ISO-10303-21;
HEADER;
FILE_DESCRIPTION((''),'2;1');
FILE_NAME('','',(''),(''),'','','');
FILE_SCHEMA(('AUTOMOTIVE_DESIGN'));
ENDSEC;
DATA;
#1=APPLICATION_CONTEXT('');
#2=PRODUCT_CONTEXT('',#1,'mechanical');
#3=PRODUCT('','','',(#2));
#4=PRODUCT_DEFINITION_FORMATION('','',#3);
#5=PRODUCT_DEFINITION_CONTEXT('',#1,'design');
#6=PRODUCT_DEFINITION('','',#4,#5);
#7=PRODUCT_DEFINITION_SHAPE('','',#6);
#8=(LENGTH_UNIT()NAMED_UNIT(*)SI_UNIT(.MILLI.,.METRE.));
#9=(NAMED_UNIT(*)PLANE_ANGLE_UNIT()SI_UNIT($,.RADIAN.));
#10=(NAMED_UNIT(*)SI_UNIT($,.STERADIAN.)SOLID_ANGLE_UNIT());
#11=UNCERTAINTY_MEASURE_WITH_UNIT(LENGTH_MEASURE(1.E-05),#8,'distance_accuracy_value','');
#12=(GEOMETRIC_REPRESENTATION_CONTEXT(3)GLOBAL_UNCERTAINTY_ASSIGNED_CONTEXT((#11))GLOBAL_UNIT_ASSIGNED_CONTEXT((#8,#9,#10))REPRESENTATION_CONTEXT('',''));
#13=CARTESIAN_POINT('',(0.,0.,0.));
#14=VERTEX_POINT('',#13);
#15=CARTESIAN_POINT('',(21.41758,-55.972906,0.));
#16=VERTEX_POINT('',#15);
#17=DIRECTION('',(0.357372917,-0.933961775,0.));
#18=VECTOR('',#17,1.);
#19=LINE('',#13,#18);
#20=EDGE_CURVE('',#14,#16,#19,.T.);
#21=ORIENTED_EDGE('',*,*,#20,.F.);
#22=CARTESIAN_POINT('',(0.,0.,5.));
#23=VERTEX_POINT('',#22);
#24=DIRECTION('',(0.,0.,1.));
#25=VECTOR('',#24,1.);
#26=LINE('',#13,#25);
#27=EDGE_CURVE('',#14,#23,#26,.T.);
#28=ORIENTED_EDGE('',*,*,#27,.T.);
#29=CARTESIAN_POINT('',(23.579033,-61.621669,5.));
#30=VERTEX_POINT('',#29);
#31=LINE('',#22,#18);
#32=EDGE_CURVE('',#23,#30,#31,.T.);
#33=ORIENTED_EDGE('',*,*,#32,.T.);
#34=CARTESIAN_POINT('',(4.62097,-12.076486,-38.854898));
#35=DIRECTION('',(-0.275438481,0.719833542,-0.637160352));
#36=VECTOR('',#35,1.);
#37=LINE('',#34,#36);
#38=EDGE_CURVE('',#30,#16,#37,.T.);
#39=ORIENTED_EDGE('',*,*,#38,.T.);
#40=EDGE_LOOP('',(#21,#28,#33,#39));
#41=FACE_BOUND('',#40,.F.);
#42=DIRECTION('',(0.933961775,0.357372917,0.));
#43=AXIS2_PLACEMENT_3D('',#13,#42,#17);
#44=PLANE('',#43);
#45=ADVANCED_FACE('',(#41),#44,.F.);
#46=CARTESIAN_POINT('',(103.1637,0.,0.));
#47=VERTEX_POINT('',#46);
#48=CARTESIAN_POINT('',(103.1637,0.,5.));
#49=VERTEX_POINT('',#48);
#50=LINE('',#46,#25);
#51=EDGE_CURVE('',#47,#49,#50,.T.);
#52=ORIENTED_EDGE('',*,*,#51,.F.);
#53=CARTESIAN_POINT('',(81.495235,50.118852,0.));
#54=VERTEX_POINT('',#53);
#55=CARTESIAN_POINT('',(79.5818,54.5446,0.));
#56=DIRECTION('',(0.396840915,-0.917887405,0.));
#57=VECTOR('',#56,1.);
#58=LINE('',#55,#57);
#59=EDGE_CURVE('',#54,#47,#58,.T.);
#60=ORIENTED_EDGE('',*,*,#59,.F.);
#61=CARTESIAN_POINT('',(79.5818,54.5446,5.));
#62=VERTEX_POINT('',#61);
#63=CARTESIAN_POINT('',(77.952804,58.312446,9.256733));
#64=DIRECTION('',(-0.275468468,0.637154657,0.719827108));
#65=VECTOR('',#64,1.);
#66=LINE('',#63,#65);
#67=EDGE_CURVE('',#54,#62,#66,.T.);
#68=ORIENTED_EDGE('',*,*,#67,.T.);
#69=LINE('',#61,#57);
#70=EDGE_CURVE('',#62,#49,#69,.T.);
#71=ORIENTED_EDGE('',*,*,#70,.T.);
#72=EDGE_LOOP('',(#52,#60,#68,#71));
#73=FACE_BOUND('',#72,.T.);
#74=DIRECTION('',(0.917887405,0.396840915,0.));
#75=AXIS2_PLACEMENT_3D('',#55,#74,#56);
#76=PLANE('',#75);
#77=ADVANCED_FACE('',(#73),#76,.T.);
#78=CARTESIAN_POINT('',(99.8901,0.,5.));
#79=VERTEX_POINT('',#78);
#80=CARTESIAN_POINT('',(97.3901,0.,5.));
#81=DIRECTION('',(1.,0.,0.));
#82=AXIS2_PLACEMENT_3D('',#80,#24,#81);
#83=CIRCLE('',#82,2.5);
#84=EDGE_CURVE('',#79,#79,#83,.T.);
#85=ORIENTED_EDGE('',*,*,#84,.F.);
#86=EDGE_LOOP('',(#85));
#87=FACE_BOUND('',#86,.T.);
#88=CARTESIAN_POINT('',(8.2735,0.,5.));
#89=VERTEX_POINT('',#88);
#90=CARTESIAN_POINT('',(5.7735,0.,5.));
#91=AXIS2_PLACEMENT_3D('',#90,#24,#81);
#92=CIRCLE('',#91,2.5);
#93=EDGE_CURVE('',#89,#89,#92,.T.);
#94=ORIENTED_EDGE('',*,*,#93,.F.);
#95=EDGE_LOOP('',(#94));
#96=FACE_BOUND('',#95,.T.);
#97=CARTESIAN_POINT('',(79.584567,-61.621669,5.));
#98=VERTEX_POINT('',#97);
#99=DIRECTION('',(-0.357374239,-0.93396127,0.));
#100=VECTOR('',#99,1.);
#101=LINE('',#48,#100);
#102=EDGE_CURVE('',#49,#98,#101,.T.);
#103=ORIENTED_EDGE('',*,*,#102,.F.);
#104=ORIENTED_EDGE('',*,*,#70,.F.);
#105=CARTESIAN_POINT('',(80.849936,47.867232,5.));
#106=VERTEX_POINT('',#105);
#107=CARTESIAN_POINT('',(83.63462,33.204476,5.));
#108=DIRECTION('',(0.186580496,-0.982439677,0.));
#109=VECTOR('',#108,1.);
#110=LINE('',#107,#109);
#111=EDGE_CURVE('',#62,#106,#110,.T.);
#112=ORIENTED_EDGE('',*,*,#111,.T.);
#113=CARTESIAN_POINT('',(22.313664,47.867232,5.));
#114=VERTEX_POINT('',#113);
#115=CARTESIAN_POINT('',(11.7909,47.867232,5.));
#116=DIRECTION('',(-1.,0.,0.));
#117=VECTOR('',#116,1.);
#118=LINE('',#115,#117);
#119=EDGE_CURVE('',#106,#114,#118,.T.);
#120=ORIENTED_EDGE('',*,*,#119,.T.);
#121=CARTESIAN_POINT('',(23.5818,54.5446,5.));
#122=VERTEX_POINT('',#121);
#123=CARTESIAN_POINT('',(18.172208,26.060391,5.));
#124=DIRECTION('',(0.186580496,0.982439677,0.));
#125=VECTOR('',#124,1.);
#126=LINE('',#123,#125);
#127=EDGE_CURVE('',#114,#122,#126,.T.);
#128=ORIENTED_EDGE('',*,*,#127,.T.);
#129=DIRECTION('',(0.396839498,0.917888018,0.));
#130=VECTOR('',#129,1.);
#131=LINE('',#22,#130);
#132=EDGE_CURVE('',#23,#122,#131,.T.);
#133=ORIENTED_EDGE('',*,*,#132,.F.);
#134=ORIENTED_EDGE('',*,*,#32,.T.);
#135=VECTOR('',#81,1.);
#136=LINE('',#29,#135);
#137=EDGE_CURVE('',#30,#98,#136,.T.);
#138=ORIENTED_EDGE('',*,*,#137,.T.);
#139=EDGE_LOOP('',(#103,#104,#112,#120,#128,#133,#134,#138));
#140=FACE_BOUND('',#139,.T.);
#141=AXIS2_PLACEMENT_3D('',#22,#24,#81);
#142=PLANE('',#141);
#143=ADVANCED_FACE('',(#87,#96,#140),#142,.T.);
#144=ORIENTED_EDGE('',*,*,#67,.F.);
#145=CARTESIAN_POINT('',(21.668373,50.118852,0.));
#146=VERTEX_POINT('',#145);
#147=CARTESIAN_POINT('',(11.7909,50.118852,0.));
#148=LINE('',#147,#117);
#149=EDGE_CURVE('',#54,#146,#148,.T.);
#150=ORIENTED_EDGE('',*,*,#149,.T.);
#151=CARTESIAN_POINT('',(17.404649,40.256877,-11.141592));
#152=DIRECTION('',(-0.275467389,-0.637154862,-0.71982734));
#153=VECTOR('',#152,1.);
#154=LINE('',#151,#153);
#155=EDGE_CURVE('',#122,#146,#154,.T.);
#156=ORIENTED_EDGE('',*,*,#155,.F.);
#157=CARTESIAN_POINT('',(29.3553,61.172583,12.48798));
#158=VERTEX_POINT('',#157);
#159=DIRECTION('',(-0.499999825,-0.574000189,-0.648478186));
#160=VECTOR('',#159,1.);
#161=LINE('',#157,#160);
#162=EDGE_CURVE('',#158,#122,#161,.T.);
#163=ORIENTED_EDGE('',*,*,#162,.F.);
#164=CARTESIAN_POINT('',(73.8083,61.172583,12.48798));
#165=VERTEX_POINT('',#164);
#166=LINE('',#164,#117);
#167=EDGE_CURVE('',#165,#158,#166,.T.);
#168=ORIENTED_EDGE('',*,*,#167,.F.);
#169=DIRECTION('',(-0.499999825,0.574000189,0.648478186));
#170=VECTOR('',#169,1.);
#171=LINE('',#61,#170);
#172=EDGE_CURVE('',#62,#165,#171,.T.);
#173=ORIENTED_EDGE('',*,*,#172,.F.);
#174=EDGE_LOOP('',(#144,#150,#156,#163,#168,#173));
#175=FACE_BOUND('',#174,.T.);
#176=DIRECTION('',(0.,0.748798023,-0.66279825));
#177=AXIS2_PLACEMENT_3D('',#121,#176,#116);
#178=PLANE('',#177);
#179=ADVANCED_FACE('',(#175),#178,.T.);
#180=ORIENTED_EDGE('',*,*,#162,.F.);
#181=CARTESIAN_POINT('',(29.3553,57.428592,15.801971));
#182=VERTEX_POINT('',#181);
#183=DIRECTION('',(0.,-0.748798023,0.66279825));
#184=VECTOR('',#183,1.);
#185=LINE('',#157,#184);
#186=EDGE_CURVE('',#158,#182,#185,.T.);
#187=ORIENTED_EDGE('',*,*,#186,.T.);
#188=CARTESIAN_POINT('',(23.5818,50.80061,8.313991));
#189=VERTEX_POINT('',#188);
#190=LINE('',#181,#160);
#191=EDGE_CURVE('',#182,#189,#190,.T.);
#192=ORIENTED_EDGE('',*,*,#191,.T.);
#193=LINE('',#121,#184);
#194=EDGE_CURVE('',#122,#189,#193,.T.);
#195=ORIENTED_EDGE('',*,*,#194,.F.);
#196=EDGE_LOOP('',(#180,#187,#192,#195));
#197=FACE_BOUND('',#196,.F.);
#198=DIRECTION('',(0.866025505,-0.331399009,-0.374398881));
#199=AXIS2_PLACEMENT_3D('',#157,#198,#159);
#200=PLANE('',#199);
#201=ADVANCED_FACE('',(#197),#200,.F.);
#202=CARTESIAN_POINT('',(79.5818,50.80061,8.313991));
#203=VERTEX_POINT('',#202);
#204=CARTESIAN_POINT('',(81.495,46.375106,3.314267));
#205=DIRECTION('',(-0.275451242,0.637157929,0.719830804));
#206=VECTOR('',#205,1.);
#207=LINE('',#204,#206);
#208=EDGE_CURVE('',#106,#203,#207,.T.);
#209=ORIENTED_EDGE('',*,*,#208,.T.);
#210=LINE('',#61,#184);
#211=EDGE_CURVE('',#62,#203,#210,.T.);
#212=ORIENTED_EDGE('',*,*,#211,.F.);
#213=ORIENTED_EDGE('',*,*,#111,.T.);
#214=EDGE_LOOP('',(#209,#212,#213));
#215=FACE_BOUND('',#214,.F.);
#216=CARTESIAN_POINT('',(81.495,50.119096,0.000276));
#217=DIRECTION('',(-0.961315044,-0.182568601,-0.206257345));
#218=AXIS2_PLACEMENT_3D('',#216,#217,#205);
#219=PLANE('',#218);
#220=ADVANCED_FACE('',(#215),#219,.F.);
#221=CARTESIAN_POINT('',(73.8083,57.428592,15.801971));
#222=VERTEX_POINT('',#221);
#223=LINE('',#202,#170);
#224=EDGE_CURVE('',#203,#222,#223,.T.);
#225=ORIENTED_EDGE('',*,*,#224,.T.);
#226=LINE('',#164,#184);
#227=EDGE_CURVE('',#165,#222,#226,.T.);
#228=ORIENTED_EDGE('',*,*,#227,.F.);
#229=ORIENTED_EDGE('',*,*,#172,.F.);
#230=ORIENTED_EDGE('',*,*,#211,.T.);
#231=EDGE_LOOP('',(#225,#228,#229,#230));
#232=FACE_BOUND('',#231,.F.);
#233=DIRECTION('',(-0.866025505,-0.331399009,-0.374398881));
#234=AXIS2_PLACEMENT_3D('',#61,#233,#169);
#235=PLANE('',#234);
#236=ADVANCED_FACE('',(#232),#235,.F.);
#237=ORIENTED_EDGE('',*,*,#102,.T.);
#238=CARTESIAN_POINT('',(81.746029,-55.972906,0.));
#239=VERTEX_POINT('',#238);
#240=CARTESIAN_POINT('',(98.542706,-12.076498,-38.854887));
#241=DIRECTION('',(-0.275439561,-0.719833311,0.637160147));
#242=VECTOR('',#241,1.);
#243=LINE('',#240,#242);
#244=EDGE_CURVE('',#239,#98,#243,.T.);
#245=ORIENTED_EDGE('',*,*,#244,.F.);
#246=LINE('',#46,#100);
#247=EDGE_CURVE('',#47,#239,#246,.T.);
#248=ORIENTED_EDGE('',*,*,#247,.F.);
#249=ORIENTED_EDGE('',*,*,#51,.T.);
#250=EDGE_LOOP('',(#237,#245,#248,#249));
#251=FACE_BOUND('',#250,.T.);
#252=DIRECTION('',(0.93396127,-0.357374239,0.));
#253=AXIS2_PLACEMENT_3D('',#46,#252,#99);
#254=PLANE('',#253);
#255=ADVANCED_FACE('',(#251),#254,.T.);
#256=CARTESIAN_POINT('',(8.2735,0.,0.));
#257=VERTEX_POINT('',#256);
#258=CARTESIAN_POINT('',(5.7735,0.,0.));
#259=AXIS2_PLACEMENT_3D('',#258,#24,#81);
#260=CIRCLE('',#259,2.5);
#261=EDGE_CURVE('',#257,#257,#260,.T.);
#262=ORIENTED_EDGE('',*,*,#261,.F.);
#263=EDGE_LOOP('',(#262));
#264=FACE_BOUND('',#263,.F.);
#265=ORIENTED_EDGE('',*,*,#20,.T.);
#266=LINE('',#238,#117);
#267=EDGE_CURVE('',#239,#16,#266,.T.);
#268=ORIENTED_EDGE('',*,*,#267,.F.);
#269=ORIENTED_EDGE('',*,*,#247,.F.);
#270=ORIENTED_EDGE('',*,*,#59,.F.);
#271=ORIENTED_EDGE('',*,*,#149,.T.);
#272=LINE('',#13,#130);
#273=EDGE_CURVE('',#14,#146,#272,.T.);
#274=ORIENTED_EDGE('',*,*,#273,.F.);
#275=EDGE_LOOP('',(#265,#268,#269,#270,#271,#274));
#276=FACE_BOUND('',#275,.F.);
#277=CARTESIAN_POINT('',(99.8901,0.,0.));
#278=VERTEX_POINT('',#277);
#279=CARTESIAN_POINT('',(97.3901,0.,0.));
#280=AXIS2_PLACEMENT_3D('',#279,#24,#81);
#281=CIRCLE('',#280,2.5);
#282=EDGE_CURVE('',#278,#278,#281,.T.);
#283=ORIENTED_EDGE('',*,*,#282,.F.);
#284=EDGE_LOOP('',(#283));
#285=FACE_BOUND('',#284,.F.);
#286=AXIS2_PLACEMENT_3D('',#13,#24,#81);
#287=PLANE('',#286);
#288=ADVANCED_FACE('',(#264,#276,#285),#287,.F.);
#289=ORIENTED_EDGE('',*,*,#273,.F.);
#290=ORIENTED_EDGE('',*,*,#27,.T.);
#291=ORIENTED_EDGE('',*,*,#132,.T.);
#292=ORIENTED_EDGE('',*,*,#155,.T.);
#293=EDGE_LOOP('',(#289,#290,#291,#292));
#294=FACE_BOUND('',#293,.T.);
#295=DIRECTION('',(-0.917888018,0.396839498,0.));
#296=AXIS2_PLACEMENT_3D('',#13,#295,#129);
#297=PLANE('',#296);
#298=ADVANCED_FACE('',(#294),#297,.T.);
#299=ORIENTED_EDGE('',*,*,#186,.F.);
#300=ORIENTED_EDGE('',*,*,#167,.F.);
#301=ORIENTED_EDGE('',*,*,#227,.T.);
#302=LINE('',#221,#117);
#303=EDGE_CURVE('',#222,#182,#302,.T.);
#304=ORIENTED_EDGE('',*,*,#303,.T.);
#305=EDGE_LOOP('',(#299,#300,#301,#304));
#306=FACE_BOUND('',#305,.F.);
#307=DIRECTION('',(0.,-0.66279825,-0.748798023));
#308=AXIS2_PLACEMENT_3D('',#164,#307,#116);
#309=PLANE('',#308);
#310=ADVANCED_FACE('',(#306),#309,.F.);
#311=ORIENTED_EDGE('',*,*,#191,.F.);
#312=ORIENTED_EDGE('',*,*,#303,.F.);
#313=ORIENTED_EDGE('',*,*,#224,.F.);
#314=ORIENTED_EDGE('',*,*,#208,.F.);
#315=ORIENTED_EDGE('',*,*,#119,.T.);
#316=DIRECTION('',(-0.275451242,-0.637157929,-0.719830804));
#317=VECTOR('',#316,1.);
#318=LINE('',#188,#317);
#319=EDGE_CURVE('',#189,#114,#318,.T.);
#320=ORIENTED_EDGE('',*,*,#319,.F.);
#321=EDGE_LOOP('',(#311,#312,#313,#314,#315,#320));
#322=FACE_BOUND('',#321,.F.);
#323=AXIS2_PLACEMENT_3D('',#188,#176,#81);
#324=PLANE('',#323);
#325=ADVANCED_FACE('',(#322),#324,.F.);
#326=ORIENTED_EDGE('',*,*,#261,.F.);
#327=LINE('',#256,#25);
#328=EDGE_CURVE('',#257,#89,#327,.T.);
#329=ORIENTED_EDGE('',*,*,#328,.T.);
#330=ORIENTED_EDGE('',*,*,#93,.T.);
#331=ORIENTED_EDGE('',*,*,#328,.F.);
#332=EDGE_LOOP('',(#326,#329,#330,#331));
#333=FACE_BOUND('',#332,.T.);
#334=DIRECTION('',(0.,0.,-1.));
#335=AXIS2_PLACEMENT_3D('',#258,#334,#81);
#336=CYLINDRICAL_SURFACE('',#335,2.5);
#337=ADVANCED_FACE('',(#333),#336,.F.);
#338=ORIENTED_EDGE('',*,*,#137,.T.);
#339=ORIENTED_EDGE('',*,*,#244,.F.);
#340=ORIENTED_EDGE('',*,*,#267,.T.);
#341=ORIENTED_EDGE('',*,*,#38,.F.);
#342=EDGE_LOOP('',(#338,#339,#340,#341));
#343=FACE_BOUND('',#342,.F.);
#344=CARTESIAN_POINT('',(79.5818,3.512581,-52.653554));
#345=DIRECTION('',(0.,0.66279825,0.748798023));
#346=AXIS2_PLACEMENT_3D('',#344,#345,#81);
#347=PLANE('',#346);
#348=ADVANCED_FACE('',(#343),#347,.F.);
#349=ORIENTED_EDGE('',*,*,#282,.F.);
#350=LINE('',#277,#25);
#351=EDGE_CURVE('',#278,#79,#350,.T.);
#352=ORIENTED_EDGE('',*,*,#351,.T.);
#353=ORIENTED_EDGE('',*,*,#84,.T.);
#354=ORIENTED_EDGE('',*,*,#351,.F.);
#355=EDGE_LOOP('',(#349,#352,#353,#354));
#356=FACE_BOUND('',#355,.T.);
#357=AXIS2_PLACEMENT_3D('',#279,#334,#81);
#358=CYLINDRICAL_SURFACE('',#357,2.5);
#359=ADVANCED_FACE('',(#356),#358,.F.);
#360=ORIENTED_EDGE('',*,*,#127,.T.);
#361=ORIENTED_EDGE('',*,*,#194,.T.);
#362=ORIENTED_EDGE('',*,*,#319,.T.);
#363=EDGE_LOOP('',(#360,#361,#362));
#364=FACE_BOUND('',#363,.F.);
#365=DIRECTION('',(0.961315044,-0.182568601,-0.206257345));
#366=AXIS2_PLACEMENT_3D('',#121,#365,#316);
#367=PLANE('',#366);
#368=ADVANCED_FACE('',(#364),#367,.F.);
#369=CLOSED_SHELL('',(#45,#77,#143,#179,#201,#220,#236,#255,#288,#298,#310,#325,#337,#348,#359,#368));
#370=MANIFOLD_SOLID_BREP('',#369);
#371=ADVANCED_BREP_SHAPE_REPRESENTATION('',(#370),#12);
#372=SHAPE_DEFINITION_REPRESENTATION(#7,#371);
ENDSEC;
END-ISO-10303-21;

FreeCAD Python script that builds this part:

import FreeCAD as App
import Part
import Sketcher
Q = App.Units.Quantity


def add_polygon(sketch, points):
    """Adds a closed chain of lines whose ends are joined by coincident constraints."""
    first, n = sketch.GeometryCount, len(points)
    for a, b in zip(points, points[1:] + points[:1]):
        sketch.addGeometry(Part.LineSegment(App.Vector(*a, 0), App.Vector(*b, 0)), False)
    for i in range(n):
        sketch.addConstraint(Sketcher.Constraint("Coincident", first + i, 2, first + (i + 1) % n, 1))

doc = App.newDocument("Part")
params = doc.addObject("Spreadsheet::Sheet", "Params")
for row, (alias, value) in enumerate([
    ("sketch1_diameter", "5 mm"),
    ("sketch1_width", "56 mm"),
    ("pad1_length", "5 mm"),
    ("sketch2_width", "56 mm"),
    ("pad2_length", "5 mm"),
    ("sketch4_width", "75 mm"),
    ("sketch4_height", "15 mm"),
], start=1):
    params.set(f"A{row}", alias)
    params.set(f"B{row}", "=" + value)
    params.setAlias(f"B{row}", alias)

body = doc.addObject("PartDesign::Body", "Body")

# Sketch on XY plane
sketch1 = body.newObject("Sketcher::SketchObject", "Sketch")
sketch1.AttachmentSupport = (doc.getObject("XY_Plane"), [""])
sketch1.MapMode = "FlatFace"
add_polygon(sketch1, [(23.6, 54.5), (0, 0), (23.6, -61.6), (79.6, -61.6), (103.2, 0), (79.6, 54.5)])  # lines 0-5
sketch1.addGeometry(Part.Circle(App.Vector(5.8, 0, 0), App.Vector(0, 0, 1), 2.5), False)  # 6
sketch1.addGeometry(Part.Circle(App.Vector(97.4, 0, 0), App.Vector(0, 0, 1), 2.5), False)  # 7
sketch1.addConstraint([
    Sketcher.Constraint("Horizontal", 2),
    Sketcher.Constraint("Horizontal", 5),
    Sketcher.Constraint("Coincident", 0, 2, -1, 1),
    Sketcher.Constraint("Equal", 6, 7),
    Sketcher.Constraint("PointOnObject", 6, 3, -1),
    Sketcher.Constraint("PointOnObject", 7, 3, -1),
    Sketcher.Constraint("PointOnObject", 3, 2, -1),
    Sketcher.Constraint("Vertical", 2, 2, 4, 2),
    Sketcher.Constraint("Vertical", 1, 2, 5, 2),
    Sketcher.Constraint("Equal", 1, 3),
    Sketcher.Constraint("Diameter", 6, Q("5 mm")),
    Sketcher.Constraint("DistanceX", 2, 1, 2, 2, Q("56 mm")),
    Sketcher.Constraint("Distance", 0, Q("59.424 mm")),
    Sketcher.Constraint("Distance", 1, Q("65.9865 mm")),
    Sketcher.Constraint("DistanceX", -1, 1, 6, 3, Q("5.7735 mm")),
    Sketcher.Constraint("Angle", 0, Q("-113.3807 deg")),
    Sketcher.Constraint("DistanceX", 7, 3, 3, 2, Q("5.7736 mm")),
])
sketch1.setExpression("Constraints[16]", "Params.sketch1_diameter")
sketch1.setExpression("Constraints[17]", "Params.sketch1_width")
pad1 = body.newObject("PartDesign::Pad", "Pad")
pad1.Profile = sketch1
pad1.setExpression("Length", "Params.pad1_length")

# Sketch on an angled plane
sketch2 = body.newObject("Sketcher::SketchObject", "Sketch001")
sketch2.Placement = App.Placement(App.Vector(23.5818, 54.5446, 5), App.Rotation(App.Vector(-1, 0, 0), App.Vector(0, 0.66279825, 0.748798023), App.Vector(0, 0.748798023, -0.66279825), "ZXY"))
add_polygon(sketch2, [(0, -80.7), (23.6, -39.9), (23.6, -36.1), (0, 0), (-56, 0), (-79.6, -36.1), (-79.6, -39.9), (-56, -80.7)])  # lines 0-7
sketch2.addConstraint([
    Sketcher.Constraint("Vertical", 1),
    Sketcher.Constraint("Horizontal", 3),
    Sketcher.Constraint("Vertical", 5),
    Sketcher.Constraint("Horizontal", 7),
    Sketcher.Constraint("Coincident", 2, 2, -1, 1),
    Sketcher.Constraint("PointOnObject", 7, 2, -2),
    Sketcher.Constraint("Horizontal", 1, 2, 4, 2),
    Sketcher.Constraint("Horizontal", 0, 2, 5, 2),
    Sketcher.Constraint("Vertical", 3, 2, 6, 2),
    Sketcher.Constraint("Equal", 2, 4),
    Sketcher.Constraint("DistanceX", 3, 2, 3, 1, Q("56 mm")),
    Sketcher.Constraint("Angle", 0, Q("60 deg")),
    Sketcher.Constraint("DistanceY", 1, 1, 1, 2, Q("3.7442 mm")),
    Sketcher.Constraint("DistanceY", 0, 2, -1, 1, Q("39.894 mm")),
    Sketcher.Constraint("DistanceY", 6, 2, -1, 1, Q("80.739 mm")),
])
sketch2.setExpression("Constraints[18]", "Params.sketch2_width")
pocket1 = body.newObject("PartDesign::Pocket", "Pocket")
pocket1.Profile = sketch2
pocket1.Type = "ThroughAll"
pocket1.Reversed = True

# Sketch on an angled plane
sketch3 = body.newObject("Sketcher::SketchObject", "Sketch002")
sketch3.Placement = App.Placement(App.Vector(23.5818, 54.5446, 5), App.Rotation(App.Vector(1, 0, 0), App.Vector(0, -0.66279825, -0.748798023), App.Vector(0, 0.748798023, -0.66279825), "ZXY"))
add_polygon(sketch3, [(50, -10), (56, 0), (58, 7), (-2, 7), (0, 0), (6, -10)])  # lines 0-5
sketch3.addConstraint([
    Sketcher.Constraint("Horizontal", 2),
    Sketcher.Constraint("Horizontal", 5),
    Sketcher.Constraint("Coincident", 3, 2, -1, 1),
    Sketcher.Constraint("PointOnObject", 0, 2, -1),
    Sketcher.Constraint("Equal", 1, 3),
    Sketcher.Constraint("Equal", 0, 4),
    Sketcher.Constraint("Angle", 0, Q("60 deg")),
    Sketcher.Constraint("DistanceY", 4, 2, -1, 1, Q("10 mm")),
    Sketcher.Constraint("DistanceX", -1, 1, 0, 2, Q("56 mm")),
    Sketcher.Constraint("Angle", 1, Q("74.011 deg")),
    Sketcher.Constraint("DistanceX", 2, 2, 2, 1, Q("59.8264 mm")),
])
pad2 = body.newObject("PartDesign::Pad", "Pad001")
pad2.Profile = sketch3
pad2.setExpression("Length", "Params.pad2_length")
pad2.Reversed = True

# Sketch on an angled plane
sketch4 = body.newObject("Sketcher::SketchObject", "Sketch003")
sketch4.Placement = App.Placement(App.Vector(23.5818, 54.5446, 5), App.Rotation(App.Vector(1, 0, 0), App.Vector(0, -0.66279825, -0.748798023), App.Vector(0, 0.748798023, -0.66279825), "ZXY"))
add_polygon(sketch4, [(-8, 77), (67, 77), (67, 92), (-8, 92)])  # lines 0-3
sketch4.addConstraint([
    Sketcher.Constraint("Horizontal", 0),
    Sketcher.Constraint("Vertical", 1),
    Sketcher.Constraint("Horizontal", 2),
    Sketcher.Constraint("Vertical", 3),
    Sketcher.Constraint("DistanceX", 0, 1, 0, 2, Q("75 mm")),
    Sketcher.Constraint("DistanceY", 1, 1, 1, 2, Q("15 mm")),
    Sketcher.Constraint("DistanceX", -1, 1, 0, 2, Q("67.46 mm")),
    Sketcher.Constraint("DistanceY", -1, 1, 0, 2, Q("76.9948 mm")),
])
sketch4.setExpression("Constraints[8]", "Params.sketch4_width")
sketch4.setExpression("Constraints[9]", "Params.sketch4_height")
pocket2 = body.newObject("PartDesign::Pocket", "Pocket001")
pocket2.Profile = sketch4
pocket2.Type = "ThroughAll"

doc.recompute()
